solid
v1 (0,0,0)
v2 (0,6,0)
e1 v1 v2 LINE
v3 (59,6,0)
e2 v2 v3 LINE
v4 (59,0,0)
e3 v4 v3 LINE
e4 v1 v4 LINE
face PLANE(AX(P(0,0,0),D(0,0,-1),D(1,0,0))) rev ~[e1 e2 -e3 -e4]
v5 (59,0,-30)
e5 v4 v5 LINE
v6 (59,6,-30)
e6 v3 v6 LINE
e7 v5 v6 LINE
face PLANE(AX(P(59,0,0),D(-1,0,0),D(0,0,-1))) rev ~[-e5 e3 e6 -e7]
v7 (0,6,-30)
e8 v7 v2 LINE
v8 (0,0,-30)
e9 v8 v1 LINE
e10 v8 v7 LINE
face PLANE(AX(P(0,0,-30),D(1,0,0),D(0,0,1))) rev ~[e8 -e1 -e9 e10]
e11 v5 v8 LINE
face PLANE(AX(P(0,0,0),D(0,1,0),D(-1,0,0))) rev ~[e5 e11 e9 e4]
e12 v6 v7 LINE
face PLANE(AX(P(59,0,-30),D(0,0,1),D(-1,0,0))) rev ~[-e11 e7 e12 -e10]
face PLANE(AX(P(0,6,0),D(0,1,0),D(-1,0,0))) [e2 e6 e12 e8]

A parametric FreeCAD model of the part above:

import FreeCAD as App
import Part
import Sketcher
Q = App.Units.Quantity

doc = App.newDocument("Part")
body = doc.addObject("PartDesign::Body", "Body")

sketch1 = doc.addObject("Sketcher::SketchObject", "Sketch")
body.addObject(sketch1)
sketch1.AttachmentSupport = (doc.XZ_Plane, [""])
sketch1.MapMode = "FlatFace"
sketch1.addGeometry([
    Part.LineSegment(App.Vector(0, -30, 0), App.Vector(0, 0, 0)),
    Part.LineSegment(App.Vector(0, 0, 0), App.Vector(59, 0, 0)),
    Part.LineSegment(App.Vector(59, 0, 0), App.Vector(59, -30, 0)),
    Part.LineSegment(App.Vector(59, -30, 0), App.Vector(0, -30, 0)),
], False)
sketch1.addConstraint([
    Sketcher.Constraint("Coincident", 0, 2, 1, 1),
    Sketcher.Constraint("Coincident", 1, 2, 2, 1),
    Sketcher.Constraint("Coincident", 2, 2, 3, 1),
    Sketcher.Constraint("Coincident", 3, 2, 0, 1),
    Sketcher.Constraint("Vertical", 0),
    Sketcher.Constraint("Horizontal", 1),
    Sketcher.Constraint("Vertical", 2),
    Sketcher.Constraint("Horizontal", 3),
    Sketcher.Constraint("Coincident", 0, 2, -1, 1),
    Sketcher.Constraint("DistanceX", 1, 1, 1, 2, Q("59 mm")),
    Sketcher.Constraint("DistanceY", 0, 1, 0, 2, Q("30 mm")),
])
pad1 = doc.addObject("PartDesign::Pad", "Pad")
body.addObject(pad1)
pad1.Profile = sketch1
pad1.Length = 6
pad1.Reversed = True

doc.recompute()
